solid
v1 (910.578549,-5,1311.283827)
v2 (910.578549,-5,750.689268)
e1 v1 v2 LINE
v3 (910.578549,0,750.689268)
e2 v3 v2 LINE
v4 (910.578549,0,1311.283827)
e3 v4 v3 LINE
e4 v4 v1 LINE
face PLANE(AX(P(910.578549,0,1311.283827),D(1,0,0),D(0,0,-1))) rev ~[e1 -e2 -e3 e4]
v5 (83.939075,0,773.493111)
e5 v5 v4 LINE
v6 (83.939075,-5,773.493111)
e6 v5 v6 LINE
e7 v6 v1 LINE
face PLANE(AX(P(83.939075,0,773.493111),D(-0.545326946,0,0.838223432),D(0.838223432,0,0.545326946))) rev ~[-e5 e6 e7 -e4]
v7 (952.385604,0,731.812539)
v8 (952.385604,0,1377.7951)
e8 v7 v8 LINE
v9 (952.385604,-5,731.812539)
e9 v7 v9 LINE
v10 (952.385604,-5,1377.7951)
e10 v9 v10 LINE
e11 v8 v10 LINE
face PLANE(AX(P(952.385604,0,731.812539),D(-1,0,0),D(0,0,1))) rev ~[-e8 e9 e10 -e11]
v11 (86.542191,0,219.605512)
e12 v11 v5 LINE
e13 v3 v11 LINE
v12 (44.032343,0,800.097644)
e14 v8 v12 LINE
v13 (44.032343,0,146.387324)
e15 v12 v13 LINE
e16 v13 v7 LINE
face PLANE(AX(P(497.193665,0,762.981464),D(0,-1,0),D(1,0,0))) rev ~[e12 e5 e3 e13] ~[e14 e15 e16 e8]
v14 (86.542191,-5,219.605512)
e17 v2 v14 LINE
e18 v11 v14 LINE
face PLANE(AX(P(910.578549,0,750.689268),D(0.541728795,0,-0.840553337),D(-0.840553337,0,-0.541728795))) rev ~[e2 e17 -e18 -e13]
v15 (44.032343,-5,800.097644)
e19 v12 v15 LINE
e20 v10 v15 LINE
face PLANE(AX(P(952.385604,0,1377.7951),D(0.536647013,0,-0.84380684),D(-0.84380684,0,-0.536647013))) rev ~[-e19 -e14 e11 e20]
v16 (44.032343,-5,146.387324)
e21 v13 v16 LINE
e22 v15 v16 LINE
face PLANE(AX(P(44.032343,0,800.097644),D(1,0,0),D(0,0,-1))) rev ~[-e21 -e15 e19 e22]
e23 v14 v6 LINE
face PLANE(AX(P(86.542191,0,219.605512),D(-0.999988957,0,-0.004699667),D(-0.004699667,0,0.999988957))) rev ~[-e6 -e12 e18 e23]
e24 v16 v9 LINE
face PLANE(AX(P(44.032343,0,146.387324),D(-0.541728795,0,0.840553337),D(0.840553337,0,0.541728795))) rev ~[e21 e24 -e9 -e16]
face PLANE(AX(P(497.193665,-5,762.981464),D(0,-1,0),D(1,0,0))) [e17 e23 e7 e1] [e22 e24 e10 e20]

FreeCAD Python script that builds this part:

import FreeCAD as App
import Part
import Sketcher

V = App.Vector

doc = App.newDocument("Part")
params = doc.addObject("Spreadsheet::Sheet", "Params")
for row, (alias, value) in enumerate([
    ("pad1_length", "5 mm"),
], start=1):
    params.set(f"A{row}", alias)
    params.set(f"B{row}", "=" + value)
    params.setAlias(f"B{row}", alias)

body = doc.addObject("PartDesign::Body", "Body")

sketch1 = body.newObject("Sketcher::SketchObject", "Sketch")
sketch1.AttachmentSupport = (doc.getObject("XZ_Plane"), [""])
sketch1.MapMode = "FlatFace"
sketch1.addGeometry([
    Part.LineSegment(V(952.385604, 1377.7951, 0), V(44.032343, 800.097644, 0)),
    Part.LineSegment(V(44.032343, 800.097644, 0), V(44.032343, 146.387324, 0)),
    Part.LineSegment(V(44.032343, 146.387324, 0), V(952.385604, 731.812539, 0)),
    Part.LineSegment(V(952.385604, 731.812539, 0), V(952.385604, 1377.7951, 0)),
    Part.LineSegment(V(910.578549, 750.689268, 0), V(86.542191, 219.605512, 0)),
    Part.LineSegment(V(86.542191, 219.605512, 0), V(83.939075, 773.493111, 0)),
    Part.LineSegment(V(83.939075, 773.493111, 0), V(910.578549, 1311.283827, 0)),
    Part.LineSegment(V(910.578549, 1311.283827, 0), V(910.578549, 750.689268, 0)),
], False)
sketch1.addConstraint([
    Sketcher.Constraint("Coincident", 0, 2, 1, 1),
    Sketcher.Constraint("Coincident", 1, 2, 2, 1),
    Sketcher.Constraint("Coincident", 2, 2, 3, 1),
    Sketcher.Constraint("Coincident", 3, 2, 0, 1),
    Sketcher.Constraint("Coincident", 4, 2, 5, 1),
    Sketcher.Constraint("Coincident", 5, 2, 6, 1),
    Sketcher.Constraint("Coincident", 6, 2, 7, 1),
    Sketcher.Constraint("Coincident", 7, 2, 4, 1),
    Sketcher.Constraint("Vertical", 1),
    Sketcher.Constraint("Vertical", 3),
    Sketcher.Constraint("Vertical", 7),
    Sketcher.Constraint("Parallel", 2, 4),
    Sketcher.Constraint("DistanceY", 1, 2, 1, 1, 653.71032),
    Sketcher.Constraint("DistanceY", 3, 1, 3, 2, 645.982561),
    Sketcher.Constraint("DistanceY", 7, 2, 7, 1, 560.594559),
    Sketcher.Constraint("DistanceY", -1, 1, 3, 2, 1377.7951),
    Sketcher.Constraint("DistanceY", 4, 2, 5, 2, 553.887599),
    Sketcher.Constraint("Distance", 0, 1076.494309),
    Sketcher.Constraint("DistanceX", -1, 1, 4, 2, 86.542191),
    Sketcher.Constraint("DistanceY", -1, 1, 4, 2, 219.605512),
    Sketcher.Constraint("DistanceX", -1, 1, 6, 2, 910.578549),
    Sketcher.Constraint("DistanceY", -1, 1, 7, 2, 750.689268),
    Sketcher.Constraint("DistanceX", 1, 2, 4, 2, 42.509848),
    Sketcher.Constraint("DistanceX", 5, 2, 2, 2, 868.446529),
])
pad1 = body.newObject("PartDesign::Pad", "Pad")
pad1.Profile = sketch1
pad1.setExpression("Length", "Params.pad1_length")

doc.recompute()
